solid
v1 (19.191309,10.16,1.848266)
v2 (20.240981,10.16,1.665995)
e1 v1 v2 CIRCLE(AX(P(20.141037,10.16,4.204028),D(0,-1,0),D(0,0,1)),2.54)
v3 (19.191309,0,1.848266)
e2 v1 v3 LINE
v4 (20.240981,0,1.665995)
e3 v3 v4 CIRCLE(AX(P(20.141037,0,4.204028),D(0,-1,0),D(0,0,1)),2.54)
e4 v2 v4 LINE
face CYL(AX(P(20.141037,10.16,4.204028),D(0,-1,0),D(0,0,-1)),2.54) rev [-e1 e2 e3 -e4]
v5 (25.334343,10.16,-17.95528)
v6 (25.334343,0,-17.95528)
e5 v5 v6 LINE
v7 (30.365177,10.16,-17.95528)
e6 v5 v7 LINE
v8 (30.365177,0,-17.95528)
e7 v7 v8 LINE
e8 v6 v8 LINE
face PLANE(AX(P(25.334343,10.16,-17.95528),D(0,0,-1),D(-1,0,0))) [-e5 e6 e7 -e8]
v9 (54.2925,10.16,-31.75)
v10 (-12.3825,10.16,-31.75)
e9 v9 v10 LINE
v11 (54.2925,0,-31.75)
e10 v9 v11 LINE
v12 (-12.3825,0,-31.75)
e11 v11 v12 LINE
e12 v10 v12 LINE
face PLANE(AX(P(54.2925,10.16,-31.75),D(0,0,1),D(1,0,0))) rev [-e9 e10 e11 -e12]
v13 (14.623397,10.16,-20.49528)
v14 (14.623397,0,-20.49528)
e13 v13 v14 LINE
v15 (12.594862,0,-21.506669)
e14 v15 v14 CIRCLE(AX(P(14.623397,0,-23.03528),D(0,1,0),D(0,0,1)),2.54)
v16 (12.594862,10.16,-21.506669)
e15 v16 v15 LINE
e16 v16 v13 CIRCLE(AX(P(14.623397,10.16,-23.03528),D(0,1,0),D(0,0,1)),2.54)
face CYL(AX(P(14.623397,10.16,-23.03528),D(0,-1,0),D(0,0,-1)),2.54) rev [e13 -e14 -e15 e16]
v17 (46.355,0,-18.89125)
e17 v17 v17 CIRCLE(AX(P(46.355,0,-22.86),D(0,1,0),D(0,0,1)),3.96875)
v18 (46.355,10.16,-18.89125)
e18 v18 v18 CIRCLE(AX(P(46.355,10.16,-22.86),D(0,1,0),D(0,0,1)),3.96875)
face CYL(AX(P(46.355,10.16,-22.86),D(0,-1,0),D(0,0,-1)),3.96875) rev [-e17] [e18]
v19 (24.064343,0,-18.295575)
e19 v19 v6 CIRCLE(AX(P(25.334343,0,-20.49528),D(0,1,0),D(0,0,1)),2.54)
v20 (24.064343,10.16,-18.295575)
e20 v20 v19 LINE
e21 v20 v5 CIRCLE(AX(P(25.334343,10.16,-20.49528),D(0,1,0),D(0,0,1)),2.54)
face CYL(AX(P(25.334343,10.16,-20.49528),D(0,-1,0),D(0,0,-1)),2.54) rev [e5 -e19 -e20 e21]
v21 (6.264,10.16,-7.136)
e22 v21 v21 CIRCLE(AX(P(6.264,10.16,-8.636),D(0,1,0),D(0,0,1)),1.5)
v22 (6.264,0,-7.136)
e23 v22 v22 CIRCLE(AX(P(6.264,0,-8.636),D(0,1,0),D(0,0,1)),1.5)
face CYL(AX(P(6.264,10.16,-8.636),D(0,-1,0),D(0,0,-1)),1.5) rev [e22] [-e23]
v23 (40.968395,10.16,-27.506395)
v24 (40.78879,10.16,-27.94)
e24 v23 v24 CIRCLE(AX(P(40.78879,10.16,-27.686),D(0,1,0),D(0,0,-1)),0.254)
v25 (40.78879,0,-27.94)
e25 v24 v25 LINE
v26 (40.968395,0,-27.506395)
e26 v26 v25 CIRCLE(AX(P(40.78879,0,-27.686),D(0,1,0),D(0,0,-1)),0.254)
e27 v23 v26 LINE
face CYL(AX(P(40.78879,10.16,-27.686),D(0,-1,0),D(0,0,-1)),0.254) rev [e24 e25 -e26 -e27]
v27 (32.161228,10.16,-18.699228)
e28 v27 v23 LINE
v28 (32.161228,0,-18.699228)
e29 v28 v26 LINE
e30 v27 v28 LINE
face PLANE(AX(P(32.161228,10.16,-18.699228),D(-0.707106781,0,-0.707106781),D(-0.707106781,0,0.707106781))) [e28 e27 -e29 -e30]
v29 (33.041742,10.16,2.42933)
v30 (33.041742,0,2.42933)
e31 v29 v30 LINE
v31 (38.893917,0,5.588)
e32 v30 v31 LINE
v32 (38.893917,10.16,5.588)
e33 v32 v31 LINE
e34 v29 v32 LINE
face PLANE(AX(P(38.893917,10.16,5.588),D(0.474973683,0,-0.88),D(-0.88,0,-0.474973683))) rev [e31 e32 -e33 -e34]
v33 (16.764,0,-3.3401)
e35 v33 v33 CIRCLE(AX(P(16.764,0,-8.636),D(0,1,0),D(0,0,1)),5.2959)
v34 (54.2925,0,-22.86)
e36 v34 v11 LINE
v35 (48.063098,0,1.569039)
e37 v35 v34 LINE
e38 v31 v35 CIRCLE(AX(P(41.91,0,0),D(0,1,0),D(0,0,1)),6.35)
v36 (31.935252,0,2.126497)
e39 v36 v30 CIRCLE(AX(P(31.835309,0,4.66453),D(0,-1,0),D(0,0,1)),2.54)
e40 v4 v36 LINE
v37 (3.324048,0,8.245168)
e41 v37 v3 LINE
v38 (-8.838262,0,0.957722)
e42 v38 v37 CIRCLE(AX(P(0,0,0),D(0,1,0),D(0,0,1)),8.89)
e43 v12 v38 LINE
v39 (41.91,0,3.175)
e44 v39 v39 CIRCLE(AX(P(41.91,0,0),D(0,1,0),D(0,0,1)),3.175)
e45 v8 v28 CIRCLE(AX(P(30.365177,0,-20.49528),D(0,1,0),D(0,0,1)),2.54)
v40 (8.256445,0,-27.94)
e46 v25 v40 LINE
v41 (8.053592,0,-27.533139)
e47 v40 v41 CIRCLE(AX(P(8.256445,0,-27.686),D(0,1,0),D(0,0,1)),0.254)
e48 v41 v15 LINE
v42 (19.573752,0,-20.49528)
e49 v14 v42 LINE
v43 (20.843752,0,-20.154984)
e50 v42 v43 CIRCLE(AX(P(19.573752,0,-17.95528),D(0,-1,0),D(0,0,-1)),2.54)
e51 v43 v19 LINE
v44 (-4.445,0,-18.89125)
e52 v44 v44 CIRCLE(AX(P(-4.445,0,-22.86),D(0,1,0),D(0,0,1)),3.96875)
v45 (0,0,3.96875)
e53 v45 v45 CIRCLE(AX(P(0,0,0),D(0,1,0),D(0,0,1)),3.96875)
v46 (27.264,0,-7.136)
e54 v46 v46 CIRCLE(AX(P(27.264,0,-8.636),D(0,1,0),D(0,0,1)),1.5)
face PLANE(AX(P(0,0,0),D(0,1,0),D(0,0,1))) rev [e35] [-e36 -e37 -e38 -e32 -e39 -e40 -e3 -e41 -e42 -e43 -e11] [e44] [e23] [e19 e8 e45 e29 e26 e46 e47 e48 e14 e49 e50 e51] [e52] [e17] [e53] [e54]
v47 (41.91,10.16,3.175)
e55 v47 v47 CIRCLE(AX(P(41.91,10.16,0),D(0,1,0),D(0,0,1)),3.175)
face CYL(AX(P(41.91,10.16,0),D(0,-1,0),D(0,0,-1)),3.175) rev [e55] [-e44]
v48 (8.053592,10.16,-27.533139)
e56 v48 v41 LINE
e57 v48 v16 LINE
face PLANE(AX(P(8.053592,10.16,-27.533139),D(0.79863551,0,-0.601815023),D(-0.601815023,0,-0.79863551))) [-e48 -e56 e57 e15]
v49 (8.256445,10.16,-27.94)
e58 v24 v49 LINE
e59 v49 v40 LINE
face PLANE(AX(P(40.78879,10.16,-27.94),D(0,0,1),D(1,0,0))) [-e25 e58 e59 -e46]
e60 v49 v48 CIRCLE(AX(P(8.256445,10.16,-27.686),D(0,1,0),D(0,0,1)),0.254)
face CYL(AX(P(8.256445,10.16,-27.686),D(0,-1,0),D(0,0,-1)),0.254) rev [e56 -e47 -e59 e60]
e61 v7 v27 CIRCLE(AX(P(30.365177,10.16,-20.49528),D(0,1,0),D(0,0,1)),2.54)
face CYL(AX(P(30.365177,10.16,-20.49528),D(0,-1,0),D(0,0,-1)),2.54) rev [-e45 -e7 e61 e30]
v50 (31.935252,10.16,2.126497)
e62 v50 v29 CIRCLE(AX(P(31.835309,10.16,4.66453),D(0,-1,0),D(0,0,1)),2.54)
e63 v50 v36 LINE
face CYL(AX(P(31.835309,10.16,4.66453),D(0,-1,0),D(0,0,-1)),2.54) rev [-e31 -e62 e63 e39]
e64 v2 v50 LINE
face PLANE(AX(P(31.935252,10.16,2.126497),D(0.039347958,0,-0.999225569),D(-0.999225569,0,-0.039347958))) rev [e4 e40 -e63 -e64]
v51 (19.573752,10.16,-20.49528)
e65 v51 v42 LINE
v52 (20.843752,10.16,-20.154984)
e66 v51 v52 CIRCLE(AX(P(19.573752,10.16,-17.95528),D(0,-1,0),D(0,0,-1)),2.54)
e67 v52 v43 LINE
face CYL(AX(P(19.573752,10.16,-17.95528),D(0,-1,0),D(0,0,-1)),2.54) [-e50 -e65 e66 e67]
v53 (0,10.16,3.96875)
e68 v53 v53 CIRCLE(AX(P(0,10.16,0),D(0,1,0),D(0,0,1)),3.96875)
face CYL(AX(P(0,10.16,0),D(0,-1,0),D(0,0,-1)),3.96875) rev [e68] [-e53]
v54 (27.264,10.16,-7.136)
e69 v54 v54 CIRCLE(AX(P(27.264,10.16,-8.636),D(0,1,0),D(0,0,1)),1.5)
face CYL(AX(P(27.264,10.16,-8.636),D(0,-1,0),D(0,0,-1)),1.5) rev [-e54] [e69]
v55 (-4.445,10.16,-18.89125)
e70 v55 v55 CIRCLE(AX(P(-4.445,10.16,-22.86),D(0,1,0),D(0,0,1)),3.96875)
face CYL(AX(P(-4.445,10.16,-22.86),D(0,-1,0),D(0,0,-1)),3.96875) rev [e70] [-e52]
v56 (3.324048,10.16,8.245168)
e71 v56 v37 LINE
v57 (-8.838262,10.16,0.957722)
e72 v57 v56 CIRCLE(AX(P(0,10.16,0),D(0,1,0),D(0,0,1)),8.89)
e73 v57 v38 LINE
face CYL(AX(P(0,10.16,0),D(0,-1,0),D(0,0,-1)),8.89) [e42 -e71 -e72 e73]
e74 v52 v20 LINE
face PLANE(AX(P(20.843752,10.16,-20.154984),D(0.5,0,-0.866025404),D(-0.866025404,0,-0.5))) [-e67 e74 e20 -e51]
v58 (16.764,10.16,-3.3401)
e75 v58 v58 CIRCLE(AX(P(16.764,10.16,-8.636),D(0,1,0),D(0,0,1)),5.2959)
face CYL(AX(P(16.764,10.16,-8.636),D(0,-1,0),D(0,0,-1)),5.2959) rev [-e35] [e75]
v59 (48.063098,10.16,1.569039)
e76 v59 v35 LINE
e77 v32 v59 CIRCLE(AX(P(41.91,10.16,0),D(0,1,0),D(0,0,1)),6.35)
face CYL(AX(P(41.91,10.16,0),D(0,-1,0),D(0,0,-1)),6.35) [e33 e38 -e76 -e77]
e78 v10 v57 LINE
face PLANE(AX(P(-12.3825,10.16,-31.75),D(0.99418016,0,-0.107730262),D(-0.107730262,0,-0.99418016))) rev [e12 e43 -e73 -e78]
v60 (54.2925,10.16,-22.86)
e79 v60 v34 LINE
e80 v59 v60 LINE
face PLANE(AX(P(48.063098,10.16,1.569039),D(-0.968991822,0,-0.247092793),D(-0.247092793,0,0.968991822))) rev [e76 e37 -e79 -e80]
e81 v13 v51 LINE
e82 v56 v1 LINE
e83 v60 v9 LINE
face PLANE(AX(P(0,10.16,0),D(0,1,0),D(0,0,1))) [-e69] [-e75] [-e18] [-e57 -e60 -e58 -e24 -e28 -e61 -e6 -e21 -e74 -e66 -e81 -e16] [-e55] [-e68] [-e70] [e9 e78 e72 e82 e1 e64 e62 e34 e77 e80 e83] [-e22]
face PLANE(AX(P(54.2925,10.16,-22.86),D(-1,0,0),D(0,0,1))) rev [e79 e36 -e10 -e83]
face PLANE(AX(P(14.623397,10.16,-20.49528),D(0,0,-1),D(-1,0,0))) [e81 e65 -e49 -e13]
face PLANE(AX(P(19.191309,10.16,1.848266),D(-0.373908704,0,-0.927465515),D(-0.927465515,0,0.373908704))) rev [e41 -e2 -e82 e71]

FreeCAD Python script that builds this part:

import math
import FreeCAD as App
import Part
import Sketcher
from FreeCAD import Vector
Q = App.Units.Quantity

doc = App.newDocument("Part")
body = doc.addObject("PartDesign::Body", "Body")

sketch1 = doc.addObject("Sketcher::SketchObject", "Sketch")
body.addObject(sketch1)
sketch1.AttachmentSupport = (doc.XZ_Plane, [""])
sketch1.MapMode = "FlatFace"
sketch1.addGeometry(Part.LineSegment(Vector(54.2925, -31.75, 0), Vector(-12.3825, -31.75, 0)), False)
sketch1.addGeometry(Part.LineSegment(Vector(-12.3825, -31.75, 0), Vector(-8.838262, 0.957722, 0)), False)
sketch1.addGeometry(Part.ArcOfCircle(Part.Circle(Vector(0, 0, 0), Vector(0, 0, 1), 8.89), math.radians(68.04312), math.radians(173.815508)), False)
sketch1.addGeometry(Part.LineSegment(Vector(3.324048, 8.245168, 0), Vector(19.191309, 1.848266, 0)), False)
sketch1.addGeometry(Part.ArcOfCircle(Part.Circle(Vector(20.141037, 4.204028, 0), Vector(0, 0, 1), 2.54), math.radians(-111.95688), math.radians(-87.744946)), False)
sketch1.addGeometry(Part.LineSegment(Vector(20.240981, 1.665995, 0), Vector(31.935252, 2.126497, 0)), False)
sketch1.addGeometry(Part.ArcOfCircle(Part.Circle(Vector(31.835309, 4.66453, 0), Vector(0, 0, 1), 2.54), math.radians(-87.744946), math.radians(-61.642363)), False)
sketch1.addGeometry(Part.LineSegment(Vector(33.041742, 2.42933, 0), Vector(38.893917, 5.588, 0)), False)
sketch1.addGeometry(Part.ArcOfCircle(Part.Circle(Vector(41.91, 0, 0), Vector(0, 0, 1), 6.35), math.radians(14.305545), math.radians(118.357637)), False)
sketch1.addGeometry(Part.LineSegment(Vector(48.063098, 1.569039, 0), Vector(54.2925, -22.86, 0)), False)
sketch1.addGeometry(Part.LineSegment(Vector(54.2925, -22.86, 0), Vector(54.2925, -31.75, 0)), False)
sketch1.addGeometry(Part.Circle(Vector(0, 0, 0), Vector(0, 0, 1), 3.96875), False)
sketch1.addGeometry(Part.Circle(Vector(6.264, -8.636, 0), Vector(0, 0, 1), 1.5), False)
sketch1.addGeometry(Part.Circle(Vector(16.764, -8.636, 0), Vector(0, 0, 1), 5.2959), False)
sketch1.addGeometry(Part.Circle(Vector(41.91, 0, 0), Vector(0, 0, 1), 3.175), False)
sketch1.addGeometry(Part.Circle(Vector(27.264, -8.636, 0), Vector(0, 0, 1), 1.5), False)
sketch1.addGeometry(Part.Circle(Vector(-4.445, -22.86, 0), Vector(0, 0, 1), 3.96875), False)
sketch1.addGeometry(Part.LineSegment(Vector(8.256445, -27.94, 0), Vector(40.78879, -27.94, 0)), False)
sketch1.addGeometry(Part.ArcOfCircle(Part.Circle(Vector(40.78879, -27.686, 0), Vector(0, 0, 1), 0.254), math.radians(-90), math.radians(45)), False)
sketch1.addGeometry(Part.LineSegment(Vector(40.968395, -27.506395, 0), Vector(32.161228, -18.699228, 0)), False)
sketch1.addGeometry(Part.ArcOfCircle(Part.Circle(Vector(30.365177, -20.49528, 0), Vector(0, 0, 1), 2.54), math.radians(45), math.radians(90)), False)
sketch1.addGeometry(Part.LineSegment(Vector(30.365177, -17.95528, 0), Vector(25.334343, -17.95528, 0)), False)
sketch1.addGeometry(Part.ArcOfCircle(Part.Circle(Vector(25.334343, -20.49528, 0), Vector(0, 0, 1), 2.54), math.radians(90), math.radians(120)), False)
sketch1.addGeometry(Part.LineSegment(Vector(24.064343, -18.295575, 0), Vector(20.843752, -20.154984, 0)), False)
sketch1.addGeometry(Part.ArcOfCircle(Part.Circle(Vector(19.573752, -17.95528, 0), Vector(0, 0, 1), 2.54), math.radians(-90), math.radians(-60)), False)
sketch1.addGeometry(Part.LineSegment(Vector(19.573752, -20.49528, 0), Vector(14.623397, -20.49528, 0)), False)
sketch1.addGeometry(Part.ArcOfCircle(Part.Circle(Vector(14.623397, -23.03528, 0), Vector(0, 0, 1), 2.54), math.radians(90), math.radians(143)), False)
sketch1.addGeometry(Part.LineSegment(Vector(12.594862, -21.506669, 0), Vector(8.053592, -27.533139, 0)), False)
sketch1.addGeometry(Part.ArcOfCircle(Part.Circle(Vector(8.256445, -27.686, 0), Vector(0, 0, 1), 0.254), math.radians(143), math.radians(270)), False)
sketch1.addGeometry(Part.Circle(Vector(46.355, -22.86, 0), Vector(0, 0, 1), 3.96875), False)
sketch1.addConstraint(Sketcher.Constraint("Coincident", 0, 2, 1, 1))
sketch1.addConstraint(Sketcher.Constraint("Tangent", 1, 2, 2, 2))
sketch1.addConstraint(Sketcher.Constraint("Tangent", 2, 1, 3, 1))
sketch1.addConstraint(Sketcher.Constraint("Tangent", 3, 2, 4, 1))
sketch1.addConstraint(Sketcher.Constraint("Tangent", 4, 2, 5, 1))
sketch1.addConstraint(Sketcher.Constraint("Tangent", 5, 2, 6, 1))
sketch1.addConstraint(Sketcher.Constraint("Tangent", 6, 2, 7, 1))
sketch1.addConstraint(Sketcher.Constraint("Tangent", 7, 2, 8, 2))
sketch1.addConstraint(Sketcher.Constraint("Tangent", 8, 1, 9, 1))
sketch1.addConstraint(Sketcher.Constraint("Coincident", 9, 2, 10, 1))
sketch1.addConstraint(Sketcher.Constraint("Coincident", 10, 2, 0, 1))
sketch1.addConstraint(Sketcher.Constraint("Tangent", 17, 2, 18, 1))
sketch1.addConstraint(Sketcher.Constraint("Tangent", 18, 2, 19, 1))
sketch1.addConstraint(Sketcher.Constraint("Tangent", 19, 2, 20, 1))
sketch1.addConstraint(Sketcher.Constraint("Tangent", 20, 2, 21, 1))
sketch1.addConstraint(Sketcher.Constraint("Tangent", 21, 2, 22, 1))
sketch1.addConstraint(Sketcher.Constraint("Tangent", 22, 2, 23, 1))
sketch1.addConstraint(Sketcher.Constraint("Tangent", 23, 2, 24, 2))
sketch1.addConstraint(Sketcher.Constraint("Tangent", 24, 1, 25, 1))
sketch1.addConstraint(Sketcher.Constraint("Tangent", 25, 2, 26, 1))
sketch1.addConstraint(Sketcher.Constraint("Tangent", 26, 2, 27, 1))
sketch1.addConstraint(Sketcher.Constraint("Tangent", 27, 2, 28, 1))
sketch1.addConstraint(Sketcher.Constraint("Tangent", 28, 2, 17, 1))
sketch1.addConstraint(Sketcher.Constraint("Horizontal", 0))
sketch1.addConstraint(Sketcher.Constraint("Vertical", 10))
sketch1.addConstraint(Sketcher.Constraint("Horizontal", 17))
sketch1.addConstraint(Sketcher.Constraint("Horizontal", 21))
sketch1.addConstraint(Sketcher.Constraint("Horizontal", 25))
sketch1.addConstraint(Sketcher.Constraint("Coincident", 2, 3, -1, 1))
sketch1.addConstraint(Sketcher.Constraint("Coincident", 11, 3, -1, 1))
sketch1.addConstraint(Sketcher.Constraint("Coincident", 14, 3, 8, 3))
sketch1.addConstraint(Sketcher.Constraint("Equal", 4, 6))
sketch1.addConstraint(Sketcher.Constraint("Equal", 12, 15))
sketch1.addConstraint(Sketcher.Constraint("Equal", 11, 16))
sketch1.addConstraint(Sketcher.Constraint("Equal", 6, 20))
sketch1.addConstraint(Sketcher.Constraint("Equal", 20, 22))
sketch1.addConstraint(Sketcher.Constraint("Equal", 22, 24))
sketch1.addConstraint(Sketcher.Constraint("Equal", 24, 26))
sketch1.addConstraint(Sketcher.Constraint("Equal", 18, 28))
sketch1.addConstraint(Sketcher.Constraint("Equal", 16, 29))
sketch1.addConstraint(Sketcher.Constraint("PointOnObject", 8, 3, -1))
sketch1.addConstraint(Sketcher.Constraint("Horizontal", 12, 3, 13, 3))
sketch1.addConstraint(Sketcher.Constraint("Horizontal", 13, 3, 15, 3))
sketch1.addConstraint(Sketcher.Constraint("Horizontal", 16, 3, 29, 3))
sketch1.addConstraint(Sketcher.Constraint("Horizontal", 29, 3, 9, 2))
sketch1.addConstraint(Sketcher.Constraint("Horizontal", 24, 3, 20, 2))
sketch1.addConstraint(Sketcher.Constraint("Radius", 4, Q("0.1 in")))
sketch1.addConstraint(Sketcher.Constraint("Diameter", 14, Q("0.25 in")))
sketch1.addConstraint(Sketcher.Constraint("Radius", 2, Q("0.35 in")))
sketch1.addConstraint(Sketcher.Constraint("Radius", 8, Q("0.25 in")))
sketch1.addConstraint(Sketcher.Constraint("Radius", 18, Q("0.01 in")))
sketch1.addConstraint(Sketcher.Constraint("Diameter", 11, Q("0.3125 in")))
sketch1.addConstraint(Sketcher.Constraint("Diameter", 13, Q("0.417 in")))
sketch1.addConstraint(Sketcher.Constraint("Angle", 19, Q("135 deg")))
sketch1.addConstraint(Sketcher.Constraint("Angle", 23, Q("-150 deg")))
sketch1.addConstraint(Sketcher.Constraint("Angle", 27, Q("-127 deg")))
sketch1.addConstraint(Sketcher.Constraint("DistanceY", 10, 2, 10, 1, Q("0.35 in")))
sketch1.addConstraint(Sketcher.Constraint("DistanceY", 16, 3, -1, 1, Q("0.9 in")))
sketch1.addConstraint(Sketcher.Constraint("DistanceY", 17, 2, -1, 1, Q("1.1 in")))
sketch1.addConstraint(Sketcher.Constraint("Diameter", 12, Q("3 mm")))
sketch1.addConstraint(Sketcher.Constraint("DistanceX", 0, 2, 0, 1, Q("2.625 in")))
sketch1.addConstraint(Sketcher.Constraint("DistanceX", -1, 1, 8, 3, Q("1.65 in")))
sketch1.addConstraint(Sketcher.Constraint("DistanceY", 12, 3, -1, 1, Q("0.34 in")))
sketch1.addConstraint(Sketcher.Constraint("DistanceX", -1, 1, 13, 3, Q("0.66 in")))
sketch1.addConstraint(Sketcher.Constraint("DistanceY", -1, 1, 7, 2, Q("0.22 in")))
sketch1.addConstraint(Sketcher.Constraint("DistanceX", 16, 3, -1, 1, Q("0.175 in")))
sketch1.addConstraint(Sketcher.Constraint("DistanceX", -1, 1, 29, 3, Q("1.825 in")))
sketch1.addConstraint(Sketcher.Constraint("DistanceX", 0, 2, 16, 3, Q("0.3125 in")))
sketch1.addConstraint(Sketcher.Constraint("DistanceY", 4, 3, 2, 1, Q("0.1591 in")))
sketch1.addConstraint(Sketcher.Constraint("Distance", 7, Q("6.650199 mm")))
sketch1.addConstraint(Sketcher.Constraint("DistanceX", -1, 1, 12, 3, Q("6.264 mm")))
sketch1.addConstraint(Sketcher.Constraint("DistanceX", -1, 1, 15, 3, Q("27.264 mm")))
sketch1.addConstraint(Sketcher.Constraint("DistanceX", 28, 3, 22, 3, Q("17.077898 mm")))
sketch1.addConstraint(Sketcher.Constraint("DistanceX", 3, 2, 6, 3, Q("12.644 mm")))
sketch1.addConstraint(Sketcher.Constraint("DistanceX", 17, 1, 17, 2, Q("32.532345 mm")))
sketch1.addConstraint(Sketcher.Constraint("DistanceX", 21, 2, 21, 1, Q("5.030834 mm")))
sketch1.addConstraint(Sketcher.Constraint("DistanceX", -1, 1, 18, 3, Q("40.78879 mm")))
pad1 = doc.addObject("PartDesign::Pad", "Pad")
body.addObject(pad1)
pad1.Profile = sketch1
pad1.Length = Q("0.4 in")
pad1.Reversed = True

doc.recompute()
